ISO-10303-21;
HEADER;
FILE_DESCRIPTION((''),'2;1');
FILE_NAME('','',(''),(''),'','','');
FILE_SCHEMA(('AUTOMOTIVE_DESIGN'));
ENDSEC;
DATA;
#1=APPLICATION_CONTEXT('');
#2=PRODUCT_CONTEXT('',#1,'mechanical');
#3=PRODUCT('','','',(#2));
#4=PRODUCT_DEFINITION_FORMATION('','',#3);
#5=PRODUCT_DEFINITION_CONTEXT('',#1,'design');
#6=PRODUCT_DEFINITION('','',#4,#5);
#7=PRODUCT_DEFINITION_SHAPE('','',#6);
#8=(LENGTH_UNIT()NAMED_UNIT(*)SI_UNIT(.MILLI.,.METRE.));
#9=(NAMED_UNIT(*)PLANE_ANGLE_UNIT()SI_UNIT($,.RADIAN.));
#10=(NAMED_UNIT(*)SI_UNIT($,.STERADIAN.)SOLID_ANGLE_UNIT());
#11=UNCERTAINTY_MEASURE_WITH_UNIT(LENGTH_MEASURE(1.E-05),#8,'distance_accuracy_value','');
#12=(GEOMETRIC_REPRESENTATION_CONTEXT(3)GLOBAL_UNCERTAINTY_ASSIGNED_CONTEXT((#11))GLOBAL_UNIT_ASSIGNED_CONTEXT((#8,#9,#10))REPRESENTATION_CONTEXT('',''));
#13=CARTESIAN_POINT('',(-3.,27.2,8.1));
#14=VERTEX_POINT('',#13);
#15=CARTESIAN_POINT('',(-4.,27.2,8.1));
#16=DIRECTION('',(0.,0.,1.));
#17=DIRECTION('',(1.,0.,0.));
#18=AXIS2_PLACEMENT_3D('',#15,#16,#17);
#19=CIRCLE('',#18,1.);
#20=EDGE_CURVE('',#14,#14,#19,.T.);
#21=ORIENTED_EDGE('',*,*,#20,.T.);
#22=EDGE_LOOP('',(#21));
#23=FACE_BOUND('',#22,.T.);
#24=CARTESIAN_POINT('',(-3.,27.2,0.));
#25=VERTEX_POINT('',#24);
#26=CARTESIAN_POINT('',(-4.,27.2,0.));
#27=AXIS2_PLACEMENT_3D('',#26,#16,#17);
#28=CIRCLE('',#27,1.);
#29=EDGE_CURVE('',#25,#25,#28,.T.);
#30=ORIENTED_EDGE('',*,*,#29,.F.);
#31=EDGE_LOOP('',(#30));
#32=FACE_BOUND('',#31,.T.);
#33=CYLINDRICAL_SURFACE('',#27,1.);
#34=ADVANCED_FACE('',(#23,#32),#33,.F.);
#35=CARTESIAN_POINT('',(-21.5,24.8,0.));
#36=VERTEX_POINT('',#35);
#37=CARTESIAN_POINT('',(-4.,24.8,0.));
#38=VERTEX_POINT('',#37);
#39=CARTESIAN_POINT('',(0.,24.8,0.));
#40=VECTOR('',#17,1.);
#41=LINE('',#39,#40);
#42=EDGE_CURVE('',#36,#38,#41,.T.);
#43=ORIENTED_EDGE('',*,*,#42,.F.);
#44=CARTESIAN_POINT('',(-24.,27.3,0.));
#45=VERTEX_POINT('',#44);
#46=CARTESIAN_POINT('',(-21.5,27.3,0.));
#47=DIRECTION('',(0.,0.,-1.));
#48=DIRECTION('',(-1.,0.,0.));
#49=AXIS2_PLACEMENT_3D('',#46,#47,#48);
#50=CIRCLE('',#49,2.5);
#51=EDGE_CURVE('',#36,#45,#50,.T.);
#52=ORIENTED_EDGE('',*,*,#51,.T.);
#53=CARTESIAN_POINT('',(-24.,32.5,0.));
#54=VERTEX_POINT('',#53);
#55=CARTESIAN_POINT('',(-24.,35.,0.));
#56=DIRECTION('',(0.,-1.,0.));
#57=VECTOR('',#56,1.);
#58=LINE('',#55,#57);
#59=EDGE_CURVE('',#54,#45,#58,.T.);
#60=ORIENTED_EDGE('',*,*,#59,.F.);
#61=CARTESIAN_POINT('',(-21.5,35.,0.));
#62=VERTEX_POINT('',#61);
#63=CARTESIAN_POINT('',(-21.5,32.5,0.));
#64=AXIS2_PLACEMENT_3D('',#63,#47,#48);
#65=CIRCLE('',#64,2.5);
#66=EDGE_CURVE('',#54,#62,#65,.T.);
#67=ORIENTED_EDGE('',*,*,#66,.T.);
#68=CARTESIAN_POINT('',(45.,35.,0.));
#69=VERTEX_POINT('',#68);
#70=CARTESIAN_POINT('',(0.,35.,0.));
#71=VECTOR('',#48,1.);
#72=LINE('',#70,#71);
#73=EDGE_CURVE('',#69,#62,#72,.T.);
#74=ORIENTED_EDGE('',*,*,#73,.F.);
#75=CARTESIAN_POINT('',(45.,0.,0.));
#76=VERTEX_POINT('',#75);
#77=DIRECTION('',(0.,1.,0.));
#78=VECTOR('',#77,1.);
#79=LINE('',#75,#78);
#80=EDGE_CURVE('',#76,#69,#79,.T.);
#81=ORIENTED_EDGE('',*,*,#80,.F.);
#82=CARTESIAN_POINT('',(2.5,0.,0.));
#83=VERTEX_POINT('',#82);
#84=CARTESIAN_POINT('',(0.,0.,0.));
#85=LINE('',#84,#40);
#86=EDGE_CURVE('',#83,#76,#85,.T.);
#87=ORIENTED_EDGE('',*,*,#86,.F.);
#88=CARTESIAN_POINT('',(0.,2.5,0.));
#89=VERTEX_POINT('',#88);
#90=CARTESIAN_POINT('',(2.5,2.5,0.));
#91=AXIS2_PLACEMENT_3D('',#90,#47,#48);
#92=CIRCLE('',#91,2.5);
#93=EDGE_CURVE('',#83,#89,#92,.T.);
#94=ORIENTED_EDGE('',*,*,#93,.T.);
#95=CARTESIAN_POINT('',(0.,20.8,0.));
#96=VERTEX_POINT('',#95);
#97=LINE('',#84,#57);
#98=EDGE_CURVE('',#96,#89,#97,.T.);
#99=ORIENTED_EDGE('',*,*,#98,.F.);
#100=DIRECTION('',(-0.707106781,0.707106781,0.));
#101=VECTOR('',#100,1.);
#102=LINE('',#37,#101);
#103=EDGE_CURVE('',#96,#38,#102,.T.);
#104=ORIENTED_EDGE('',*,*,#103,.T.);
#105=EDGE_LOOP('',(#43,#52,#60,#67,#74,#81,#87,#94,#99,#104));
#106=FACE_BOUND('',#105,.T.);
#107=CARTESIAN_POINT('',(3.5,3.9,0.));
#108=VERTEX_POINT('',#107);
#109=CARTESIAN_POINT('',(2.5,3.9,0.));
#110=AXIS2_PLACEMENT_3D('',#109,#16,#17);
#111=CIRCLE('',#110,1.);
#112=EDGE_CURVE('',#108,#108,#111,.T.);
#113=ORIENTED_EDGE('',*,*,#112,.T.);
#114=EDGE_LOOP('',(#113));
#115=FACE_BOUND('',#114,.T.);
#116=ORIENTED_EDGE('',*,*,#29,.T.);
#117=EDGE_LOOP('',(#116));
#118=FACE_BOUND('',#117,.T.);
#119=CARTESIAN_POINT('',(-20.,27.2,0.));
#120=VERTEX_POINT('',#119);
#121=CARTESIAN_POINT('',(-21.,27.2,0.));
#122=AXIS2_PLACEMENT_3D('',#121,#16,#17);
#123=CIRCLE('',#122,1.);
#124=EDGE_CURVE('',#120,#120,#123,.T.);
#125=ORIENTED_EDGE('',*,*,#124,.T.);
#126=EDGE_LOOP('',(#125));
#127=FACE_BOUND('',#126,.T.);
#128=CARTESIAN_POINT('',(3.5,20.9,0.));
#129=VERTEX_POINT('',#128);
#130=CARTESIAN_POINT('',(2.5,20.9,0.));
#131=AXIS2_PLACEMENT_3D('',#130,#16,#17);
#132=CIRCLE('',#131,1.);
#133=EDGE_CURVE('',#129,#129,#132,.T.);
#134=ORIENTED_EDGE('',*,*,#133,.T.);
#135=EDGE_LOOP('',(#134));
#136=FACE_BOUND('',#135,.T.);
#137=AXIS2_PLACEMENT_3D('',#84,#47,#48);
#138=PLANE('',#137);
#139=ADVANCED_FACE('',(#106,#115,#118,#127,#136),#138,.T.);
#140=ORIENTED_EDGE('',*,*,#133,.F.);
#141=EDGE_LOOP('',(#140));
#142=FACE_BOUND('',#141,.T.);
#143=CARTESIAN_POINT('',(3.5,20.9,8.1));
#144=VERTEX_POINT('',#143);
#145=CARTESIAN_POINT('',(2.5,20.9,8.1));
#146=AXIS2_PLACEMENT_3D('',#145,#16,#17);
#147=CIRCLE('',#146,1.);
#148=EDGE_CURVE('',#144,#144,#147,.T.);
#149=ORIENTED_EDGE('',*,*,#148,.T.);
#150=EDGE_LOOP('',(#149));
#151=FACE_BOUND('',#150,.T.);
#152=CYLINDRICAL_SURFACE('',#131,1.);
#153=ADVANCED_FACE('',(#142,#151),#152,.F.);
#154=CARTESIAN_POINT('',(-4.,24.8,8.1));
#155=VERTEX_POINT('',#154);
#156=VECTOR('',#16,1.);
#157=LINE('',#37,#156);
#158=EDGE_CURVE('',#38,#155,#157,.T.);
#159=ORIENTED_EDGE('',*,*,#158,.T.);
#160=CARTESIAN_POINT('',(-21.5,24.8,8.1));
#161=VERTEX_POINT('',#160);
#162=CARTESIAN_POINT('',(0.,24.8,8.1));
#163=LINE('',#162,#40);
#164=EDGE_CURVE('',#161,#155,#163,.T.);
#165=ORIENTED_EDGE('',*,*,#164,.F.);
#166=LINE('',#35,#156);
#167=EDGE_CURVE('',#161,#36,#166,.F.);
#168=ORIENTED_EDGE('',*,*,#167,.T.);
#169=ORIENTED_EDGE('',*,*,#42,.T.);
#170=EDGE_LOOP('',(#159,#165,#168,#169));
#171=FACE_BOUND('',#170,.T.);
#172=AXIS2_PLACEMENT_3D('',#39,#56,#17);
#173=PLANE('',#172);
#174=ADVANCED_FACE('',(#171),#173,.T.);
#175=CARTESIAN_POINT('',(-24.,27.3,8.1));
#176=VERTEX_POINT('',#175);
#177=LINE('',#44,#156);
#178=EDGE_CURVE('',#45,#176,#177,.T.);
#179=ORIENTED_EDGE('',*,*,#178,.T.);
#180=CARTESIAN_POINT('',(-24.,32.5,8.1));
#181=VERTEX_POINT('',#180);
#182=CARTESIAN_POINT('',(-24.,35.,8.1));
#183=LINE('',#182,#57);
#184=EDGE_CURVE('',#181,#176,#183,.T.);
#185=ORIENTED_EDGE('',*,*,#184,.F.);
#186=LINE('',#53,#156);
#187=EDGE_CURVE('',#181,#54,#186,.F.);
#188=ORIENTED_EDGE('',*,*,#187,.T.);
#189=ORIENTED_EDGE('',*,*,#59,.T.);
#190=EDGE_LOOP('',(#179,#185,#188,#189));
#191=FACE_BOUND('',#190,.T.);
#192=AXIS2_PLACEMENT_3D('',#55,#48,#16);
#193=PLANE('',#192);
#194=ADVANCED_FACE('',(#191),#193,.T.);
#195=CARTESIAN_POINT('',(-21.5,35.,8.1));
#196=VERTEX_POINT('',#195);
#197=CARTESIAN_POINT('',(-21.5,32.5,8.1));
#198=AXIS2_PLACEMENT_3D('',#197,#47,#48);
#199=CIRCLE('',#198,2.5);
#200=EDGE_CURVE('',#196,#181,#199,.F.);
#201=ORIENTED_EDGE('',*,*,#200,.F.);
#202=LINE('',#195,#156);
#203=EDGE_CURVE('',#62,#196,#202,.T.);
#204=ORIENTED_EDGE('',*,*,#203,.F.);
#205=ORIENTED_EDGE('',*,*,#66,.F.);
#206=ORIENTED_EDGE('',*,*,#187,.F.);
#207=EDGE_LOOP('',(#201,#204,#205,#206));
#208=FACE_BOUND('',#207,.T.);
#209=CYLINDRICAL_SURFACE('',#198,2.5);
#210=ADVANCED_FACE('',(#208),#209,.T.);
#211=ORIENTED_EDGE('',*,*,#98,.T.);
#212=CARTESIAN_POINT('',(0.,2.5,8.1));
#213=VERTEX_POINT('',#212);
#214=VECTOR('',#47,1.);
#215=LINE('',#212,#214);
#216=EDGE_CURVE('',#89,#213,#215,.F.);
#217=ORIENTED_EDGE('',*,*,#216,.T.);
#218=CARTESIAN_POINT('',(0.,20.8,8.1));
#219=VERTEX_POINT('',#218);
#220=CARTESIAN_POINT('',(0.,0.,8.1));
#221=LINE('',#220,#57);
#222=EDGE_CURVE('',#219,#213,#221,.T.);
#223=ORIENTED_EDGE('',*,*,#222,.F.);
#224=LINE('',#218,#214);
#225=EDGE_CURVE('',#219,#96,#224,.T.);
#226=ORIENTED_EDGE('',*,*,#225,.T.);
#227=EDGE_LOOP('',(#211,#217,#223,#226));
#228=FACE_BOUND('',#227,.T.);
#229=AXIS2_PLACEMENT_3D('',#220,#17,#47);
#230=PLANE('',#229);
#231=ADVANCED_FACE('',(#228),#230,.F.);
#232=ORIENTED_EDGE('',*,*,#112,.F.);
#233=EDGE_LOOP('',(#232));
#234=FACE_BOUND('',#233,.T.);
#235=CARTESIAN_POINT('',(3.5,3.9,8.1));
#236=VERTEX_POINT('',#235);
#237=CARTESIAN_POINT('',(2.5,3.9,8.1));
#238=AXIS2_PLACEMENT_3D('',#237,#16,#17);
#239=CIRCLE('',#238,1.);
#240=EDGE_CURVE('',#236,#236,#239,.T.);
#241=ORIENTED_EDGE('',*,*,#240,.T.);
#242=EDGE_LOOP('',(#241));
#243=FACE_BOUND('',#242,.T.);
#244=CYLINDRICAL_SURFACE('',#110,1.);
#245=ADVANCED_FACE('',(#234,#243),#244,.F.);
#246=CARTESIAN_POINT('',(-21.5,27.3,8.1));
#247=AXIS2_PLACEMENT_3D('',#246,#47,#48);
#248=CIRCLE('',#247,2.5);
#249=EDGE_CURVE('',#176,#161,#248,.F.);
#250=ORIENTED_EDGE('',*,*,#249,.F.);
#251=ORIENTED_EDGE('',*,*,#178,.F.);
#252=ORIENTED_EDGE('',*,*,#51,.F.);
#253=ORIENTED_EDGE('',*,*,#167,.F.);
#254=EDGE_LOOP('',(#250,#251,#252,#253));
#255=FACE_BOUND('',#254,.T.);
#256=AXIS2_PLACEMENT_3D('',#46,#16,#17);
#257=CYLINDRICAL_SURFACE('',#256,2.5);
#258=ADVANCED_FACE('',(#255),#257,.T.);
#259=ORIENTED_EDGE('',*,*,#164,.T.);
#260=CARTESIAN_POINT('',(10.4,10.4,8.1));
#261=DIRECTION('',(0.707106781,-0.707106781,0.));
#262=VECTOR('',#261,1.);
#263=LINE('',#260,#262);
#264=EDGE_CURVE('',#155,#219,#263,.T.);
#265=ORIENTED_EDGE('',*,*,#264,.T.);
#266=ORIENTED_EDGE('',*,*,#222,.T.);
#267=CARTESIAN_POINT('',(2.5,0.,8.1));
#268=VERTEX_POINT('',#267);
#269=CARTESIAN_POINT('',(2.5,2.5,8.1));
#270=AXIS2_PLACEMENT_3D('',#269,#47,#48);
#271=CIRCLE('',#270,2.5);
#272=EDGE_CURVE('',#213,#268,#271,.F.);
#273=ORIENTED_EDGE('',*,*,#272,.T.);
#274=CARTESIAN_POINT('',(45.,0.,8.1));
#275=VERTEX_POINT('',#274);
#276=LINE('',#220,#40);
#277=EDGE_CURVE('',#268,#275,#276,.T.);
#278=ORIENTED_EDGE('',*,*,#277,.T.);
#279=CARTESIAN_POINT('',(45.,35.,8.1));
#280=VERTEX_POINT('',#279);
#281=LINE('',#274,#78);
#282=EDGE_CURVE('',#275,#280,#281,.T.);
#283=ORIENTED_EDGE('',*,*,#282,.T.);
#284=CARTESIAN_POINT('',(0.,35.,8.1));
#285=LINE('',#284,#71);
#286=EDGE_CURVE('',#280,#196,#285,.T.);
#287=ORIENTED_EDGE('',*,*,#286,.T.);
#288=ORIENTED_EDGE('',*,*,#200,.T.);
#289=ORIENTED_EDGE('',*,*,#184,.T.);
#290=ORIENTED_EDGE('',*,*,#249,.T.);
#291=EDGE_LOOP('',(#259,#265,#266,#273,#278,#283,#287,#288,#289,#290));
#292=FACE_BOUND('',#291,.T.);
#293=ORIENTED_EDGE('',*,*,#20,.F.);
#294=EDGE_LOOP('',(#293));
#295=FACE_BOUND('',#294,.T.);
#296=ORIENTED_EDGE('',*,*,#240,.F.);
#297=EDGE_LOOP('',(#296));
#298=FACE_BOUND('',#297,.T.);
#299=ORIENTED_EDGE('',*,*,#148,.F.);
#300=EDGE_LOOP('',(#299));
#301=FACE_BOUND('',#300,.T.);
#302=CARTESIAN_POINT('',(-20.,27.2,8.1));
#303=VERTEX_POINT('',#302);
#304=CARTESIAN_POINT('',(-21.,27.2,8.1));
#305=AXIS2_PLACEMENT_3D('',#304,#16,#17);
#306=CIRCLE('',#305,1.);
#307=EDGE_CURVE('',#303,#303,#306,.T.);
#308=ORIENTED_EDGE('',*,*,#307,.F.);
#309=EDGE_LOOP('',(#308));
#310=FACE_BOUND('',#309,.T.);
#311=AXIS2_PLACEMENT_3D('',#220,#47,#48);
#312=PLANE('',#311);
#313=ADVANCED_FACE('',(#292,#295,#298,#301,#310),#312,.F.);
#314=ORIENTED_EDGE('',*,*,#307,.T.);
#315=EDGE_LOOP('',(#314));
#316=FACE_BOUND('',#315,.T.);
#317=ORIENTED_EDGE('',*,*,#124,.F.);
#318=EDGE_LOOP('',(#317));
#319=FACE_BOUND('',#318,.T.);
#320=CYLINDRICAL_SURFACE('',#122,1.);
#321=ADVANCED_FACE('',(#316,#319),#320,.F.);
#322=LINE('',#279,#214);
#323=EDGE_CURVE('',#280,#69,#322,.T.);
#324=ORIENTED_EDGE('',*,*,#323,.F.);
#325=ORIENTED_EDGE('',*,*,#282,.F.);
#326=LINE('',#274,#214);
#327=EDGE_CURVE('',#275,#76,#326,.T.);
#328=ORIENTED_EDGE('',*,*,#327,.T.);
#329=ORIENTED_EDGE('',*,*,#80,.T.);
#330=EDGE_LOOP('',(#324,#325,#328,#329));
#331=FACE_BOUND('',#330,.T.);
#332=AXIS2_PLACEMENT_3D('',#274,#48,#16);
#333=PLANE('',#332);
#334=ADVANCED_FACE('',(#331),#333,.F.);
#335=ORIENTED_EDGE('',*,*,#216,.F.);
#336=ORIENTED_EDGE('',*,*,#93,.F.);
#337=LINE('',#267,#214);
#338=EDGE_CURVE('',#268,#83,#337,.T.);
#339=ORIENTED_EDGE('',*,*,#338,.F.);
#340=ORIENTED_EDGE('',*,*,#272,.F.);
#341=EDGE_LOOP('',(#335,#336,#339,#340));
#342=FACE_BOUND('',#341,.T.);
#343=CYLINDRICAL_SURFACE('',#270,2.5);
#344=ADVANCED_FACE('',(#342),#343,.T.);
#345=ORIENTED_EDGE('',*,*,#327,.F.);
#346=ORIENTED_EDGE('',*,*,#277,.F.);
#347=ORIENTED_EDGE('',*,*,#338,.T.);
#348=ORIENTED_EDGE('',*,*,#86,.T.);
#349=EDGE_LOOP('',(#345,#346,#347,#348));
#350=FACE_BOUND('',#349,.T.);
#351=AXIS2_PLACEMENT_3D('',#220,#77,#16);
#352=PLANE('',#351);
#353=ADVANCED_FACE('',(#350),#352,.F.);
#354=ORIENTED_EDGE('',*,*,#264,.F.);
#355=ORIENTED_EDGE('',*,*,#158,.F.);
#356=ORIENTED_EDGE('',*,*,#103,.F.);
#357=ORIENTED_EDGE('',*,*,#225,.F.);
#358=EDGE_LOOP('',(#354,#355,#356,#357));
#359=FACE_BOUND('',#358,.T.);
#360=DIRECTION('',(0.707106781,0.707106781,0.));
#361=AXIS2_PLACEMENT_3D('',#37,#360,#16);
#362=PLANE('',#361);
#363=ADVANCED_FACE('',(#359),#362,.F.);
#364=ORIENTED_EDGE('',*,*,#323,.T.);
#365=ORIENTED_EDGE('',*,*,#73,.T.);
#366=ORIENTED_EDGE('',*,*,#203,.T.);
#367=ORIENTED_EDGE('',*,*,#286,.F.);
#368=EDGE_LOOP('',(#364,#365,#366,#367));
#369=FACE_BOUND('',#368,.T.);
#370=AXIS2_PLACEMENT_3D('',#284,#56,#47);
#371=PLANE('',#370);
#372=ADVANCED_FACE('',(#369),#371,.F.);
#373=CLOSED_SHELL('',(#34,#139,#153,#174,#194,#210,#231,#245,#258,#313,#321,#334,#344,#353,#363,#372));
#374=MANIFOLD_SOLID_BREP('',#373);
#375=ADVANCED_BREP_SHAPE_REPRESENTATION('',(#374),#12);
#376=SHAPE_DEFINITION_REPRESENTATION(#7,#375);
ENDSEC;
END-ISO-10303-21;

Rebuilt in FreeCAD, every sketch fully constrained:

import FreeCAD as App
import Part
import Sketcher


def edges_at(feature, points):
    """Names of the edges that pass closest to the given points."""
    edges = feature.Shape.Edges
    near = lambda p: min(range(len(edges)), key=lambda i: edges[i].distToShape(Part.Vertex(*p))[0])
    return sorted({f"Edge{near(p) + 1}" for p in points})


def add_polygon(sketch, points):
    """Adds a closed chain of lines whose ends are joined by coincident constraints."""
    first, n = sketch.GeometryCount, len(points)
    for a, b in zip(points, points[1:] + points[:1]):
        sketch.addGeometry(Part.LineSegment(App.Vector(*a, 0), App.Vector(*b, 0)), False)
    for i in range(n):
        sketch.addConstraint(Sketcher.Constraint("Coincident", first + i, 2, first + (i + 1) % n, 1))

doc = App.newDocument("Part")
params = doc.addObject("Spreadsheet::Sheet", "Params")
for row, (alias, value) in enumerate([
    ("sketch1_width", "45 mm"),
    ("sketch1_height", "35 mm"),
    ("pad1_length", "8.1 mm"),
    ("sketch2_width", "24 mm"),
    ("sketch2_height", "10.2 mm"),
    ("pad2_length", "8.1 mm"),
    ("sketch3_diameter", "2 mm"),
    ("chamfer_size", "4 mm"),
    ("fillet_radius", "2.5 mm"),
], start=1):
    params.set(f"A{row}", alias)
    params.set(f"B{row}", "=" + value)
    params.setAlias(f"B{row}", alias)

body = doc.addObject("PartDesign::Body", "Body")

# Sketch on XY plane
sketch1 = doc.addObject("Sketcher::SketchObject", "Sketch")
body.addObject(sketch1)
sketch1.AttachmentSupport = (doc.XY_Plane, [""])
sketch1.MapMode = "FlatFace"
add_polygon(sketch1, [(0, 35), (0, 0), (45, 0), (45, 35)])  # lines 0-3
sketch1.addConstraint([
    Sketcher.Constraint("Vertical", 0),
    Sketcher.Constraint("Horizontal", 1),
    Sketcher.Constraint("Vertical", 2),
    Sketcher.Constraint("Horizontal", 3),
    Sketcher.Constraint("Coincident", 0, 2, -1, 1),
    Sketcher.Constraint("DistanceX", 1, 1, 1, 2, 45.0),
    Sketcher.Constraint("DistanceY", 0, 2, 0, 1, 35.0),
])
sketch1.setExpression("Constraints[9]", "Params.sketch1_width")
sketch1.setExpression("Constraints[10]", "Params.sketch1_height")
pad1 = doc.addObject("PartDesign::Pad", "Pad")
body.addObject(pad1)
pad1.Profile = sketch1
pad1.setExpression("Length", "Params.pad1_length")

# Sketch on XY plane
sketch2 = doc.addObject("Sketcher::SketchObject", "Sketch001")
body.addObject(sketch2)
sketch2.AttachmentSupport = (doc.XY_Plane, [""])
sketch2.MapMode = "FlatFace"
sketch2.AttachmentOffset = App.Placement(App.Vector(0, 0, 8.1), App.Rotation())
add_polygon(sketch2, [(-24, 35), (-24, 24.8), (0, 24.8), (0, 35)])  # lines 0-3
sketch2.addConstraint([
    Sketcher.Constraint("Vertical", 0),
    Sketcher.Constraint("Horizontal", 1),
    Sketcher.Constraint("Vertical", 2),
    Sketcher.Constraint("Horizontal", 3),
    Sketcher.Constraint("PointOnObject", 1, 2, -2),
    Sketcher.Constraint("DistanceX", 1, 1, 1, 2, 24.0),
    Sketcher.Constraint("DistanceY", 0, 2, 0, 1, 10.2),
    Sketcher.Constraint("DistanceY", -1, 1, 2, 2, 35.0),
])
sketch2.setExpression("Constraints[9]", "Params.sketch2_width")
sketch2.setExpression("Constraints[10]", "Params.sketch2_height")
pad2 = doc.addObject("PartDesign::Pad", "Pad001")
body.addObject(pad2)
pad2.Profile = sketch2
pad2.setExpression("Length", "Params.pad2_length")
pad2.Reversed = True

# Sketch on XY plane
sketch3 = doc.addObject("Sketcher::SketchObject", "Sketch002")
body.addObject(sketch3)
sketch3.AttachmentSupport = (doc.XY_Plane, [""])
sketch3.MapMode = "FlatFace"
sketch3.AttachmentOffset = App.Placement(App.Vector(0, 0, 8.1), App.Rotation())
sketch3.addGeometry([
    Part.Circle(App.Vector(-4, 27.2, 0), App.Vector(0, 0, 1), 1),
    Part.Circle(App.Vector(-21, 27.2, 0), App.Vector(0, 0, 1), 1),
    Part.Circle(App.Vector(2.5, 20.9, 0), App.Vector(0, 0, 1), 1),
    Part.Circle(App.Vector(2.5, 3.9, 0), App.Vector(0, 0, 1), 1),
], False)
sketch3.addConstraint([
    Sketcher.Constraint("Equal", 0, 1),
    Sketcher.Constraint("Equal", 1, 2),
    Sketcher.Constraint("Equal", 2, 3),
    Sketcher.Constraint("Horizontal", 0, 3, 1, 3),
    Sketcher.Constraint("Vertical", 2, 3, 3, 3),
    Sketcher.Constraint("Diameter", 0, 2.0),
    Sketcher.Constraint("DistanceX", 0, 3, -1, 1, 4.0),
    Sketcher.Constraint("DistanceX", 1, 3, -1, 1, 21.0),
    Sketcher.Constraint("DistanceY", 3, 3, 2, 3, 17.0),
    Sketcher.Constraint("DistanceY", -1, 1, 0, 3, 27.2),
    Sketcher.Constraint("DistanceX", -1, 1, 2, 3, 2.5),
    Sketcher.Constraint("DistanceY", -1, 1, 2, 3, 20.9),
])
sketch3.setExpression("Constraints[5]", "Params.sketch3_diameter")
pocket1 = doc.addObject("PartDesign::Pocket", "Pocket")
body.addObject(pocket1)
pocket1.Profile = sketch3
pocket1.Type = "ThroughAll"
doc.recompute()

chamfer = doc.addObject("PartDesign::Chamfer", "Chamfer")
body.addObject(chamfer)
chamfer.Base = (pocket1, edges_at(pocket1, [(0, 24.8, 4.05)]))
chamfer.setExpression("Size", "Params.chamfer_size")
doc.recompute()

fillet = doc.addObject("PartDesign::Fillet", "Fillet")
body.addObject(fillet)
fillet.Base = (chamfer, edges_at(chamfer, [(-24, 24.8, 4.05), (-24, 35, 4.05), (0, 0, 4.05)]))
fillet.setExpression("Radius", "Params.fillet_radius")

doc.recompute()
